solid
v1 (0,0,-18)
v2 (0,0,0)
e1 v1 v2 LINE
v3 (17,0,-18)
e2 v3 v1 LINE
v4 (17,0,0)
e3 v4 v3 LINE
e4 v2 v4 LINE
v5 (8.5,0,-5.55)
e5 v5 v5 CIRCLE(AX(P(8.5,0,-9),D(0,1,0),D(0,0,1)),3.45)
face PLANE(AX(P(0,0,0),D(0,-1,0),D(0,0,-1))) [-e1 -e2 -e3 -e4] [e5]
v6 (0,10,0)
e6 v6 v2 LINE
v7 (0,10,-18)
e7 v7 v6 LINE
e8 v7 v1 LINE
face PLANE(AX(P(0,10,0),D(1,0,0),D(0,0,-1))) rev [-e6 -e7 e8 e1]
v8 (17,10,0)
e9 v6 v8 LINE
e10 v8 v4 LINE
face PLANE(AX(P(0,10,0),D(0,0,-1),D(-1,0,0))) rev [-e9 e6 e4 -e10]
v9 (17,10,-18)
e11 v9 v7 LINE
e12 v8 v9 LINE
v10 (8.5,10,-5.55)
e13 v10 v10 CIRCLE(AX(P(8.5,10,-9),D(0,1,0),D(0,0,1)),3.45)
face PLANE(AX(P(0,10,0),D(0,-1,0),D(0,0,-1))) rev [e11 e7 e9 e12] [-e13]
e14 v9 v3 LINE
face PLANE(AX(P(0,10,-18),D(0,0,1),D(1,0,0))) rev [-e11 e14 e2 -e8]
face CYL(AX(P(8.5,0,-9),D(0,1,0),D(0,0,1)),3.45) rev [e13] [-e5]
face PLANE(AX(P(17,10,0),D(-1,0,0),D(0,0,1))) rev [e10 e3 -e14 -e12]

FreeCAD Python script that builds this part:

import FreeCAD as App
import Part
import Sketcher

V = App.Vector


def add_polygon(sketch, points):
    """Adds a closed chain of lines whose ends are joined by coincident constraints."""
    first, n = sketch.GeometryCount, len(points)
    for a, b in zip(points, points[1:] + points[:1]):
        sketch.addGeometry(Part.LineSegment(App.Vector(*a, 0), App.Vector(*b, 0)), False)
    for i in range(n):
        sketch.addConstraint(Sketcher.Constraint("Coincident", first + i, 2, first + (i + 1) % n, 1))

doc = App.newDocument("Part")
body = doc.addObject("PartDesign::Body", "Body")

sketch1 = body.newObject("Sketcher::SketchObject", "Sketch")
sketch1.AttachmentSupport = (doc.getObject("XZ_Plane"), [""])
sketch1.MapMode = "FlatFace"
add_polygon(sketch1, [(0, -18), (0, 0), (17, 0), (17, -18)])
sketch1.addConstraint([
    Sketcher.Constraint("Vertical", 0),
    Sketcher.Constraint("Horizontal", 1),
    Sketcher.Constraint("Vertical", 2),
    Sketcher.Constraint("Horizontal", 3),
    Sketcher.Constraint("Coincident", 0, 2, -1, 1),
    Sketcher.Constraint("DistanceX", 1, 1, 1, 2, 17.0),
    Sketcher.Constraint("DistanceY", 0, 1, 0, 2, 18.0),
])
pad1 = body.newObject("PartDesign::Pad", "Pad")
pad1.Profile = sketch1
pad1.Length = 10
pad1.Reversed = True

sketch2 = body.newObject("Sketcher::SketchObject", "Sketch001")
sketch2.AttachmentSupport = (doc.getObject("XZ_Plane"), [""])
sketch2.MapMode = "FlatFace"
sketch2.AttachmentOffset = App.Placement(V(0, 0, -10), App.Rotation())
sketch2.addGeometry(Part.Circle(V(8.5, -9, 0), V(0, 0, 1), 3.5), False)
sketch2.addConstraint([
    Sketcher.Constraint("Diameter", 0, 6.9),
    Sketcher.Constraint("DistanceY", 0, 3, -1, 1, 9.0),
    Sketcher.Constraint("DistanceX", -1, 1, 0, 3, 8.5),
])
pocket1 = body.newObject("PartDesign::Pocket", "Pocket")
pocket1.Profile = sketch2
pocket1.Length = 10
pocket1.Reversed = True

doc.recompute()
